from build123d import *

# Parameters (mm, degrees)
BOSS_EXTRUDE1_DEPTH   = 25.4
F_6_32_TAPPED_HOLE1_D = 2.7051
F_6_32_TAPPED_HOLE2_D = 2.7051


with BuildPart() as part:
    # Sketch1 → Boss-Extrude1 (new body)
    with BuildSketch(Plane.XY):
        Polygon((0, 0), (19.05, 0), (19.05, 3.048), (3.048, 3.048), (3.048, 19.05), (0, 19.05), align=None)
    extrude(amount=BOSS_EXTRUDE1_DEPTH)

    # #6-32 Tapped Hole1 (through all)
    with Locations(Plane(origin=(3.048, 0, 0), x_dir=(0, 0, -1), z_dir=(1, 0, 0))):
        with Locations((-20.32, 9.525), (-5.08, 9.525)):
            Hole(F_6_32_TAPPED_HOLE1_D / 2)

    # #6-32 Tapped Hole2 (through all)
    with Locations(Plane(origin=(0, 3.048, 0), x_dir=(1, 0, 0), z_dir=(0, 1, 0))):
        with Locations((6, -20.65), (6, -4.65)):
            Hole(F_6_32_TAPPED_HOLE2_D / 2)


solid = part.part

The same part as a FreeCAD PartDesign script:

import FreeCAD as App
import Part
import Sketcher
Q = App.Units.Quantity

doc = App.newDocument("Part")
params = doc.addObject("Spreadsheet::Sheet", "Params")
for row, (alias, value) in enumerate([
    ("sketch1_width", "0.75 in"),
    ("sketch1_width2", "0.63 in"),
    ("pad1_length", "1 in"),
    ("hole_diameter", "0.1065 in"),
    ("hole2_diameter", "0.1065 in"),
], start=1):
    params.set(f"A{row}", alias)
    params.set(f"B{row}", "=" + value)
    params.setAlias(f"B{row}", alias)

body = doc.addObject("PartDesign::Body", "Body")

# Sketch on XY plane
sketch1 = body.newObject("Sketcher::SketchObject", "Sketch")
sketch1.AttachmentSupport = (doc.getObject("XY_Plane"), [""])
sketch1.MapMode = "FlatFace"
sketch1.addGeometry(Part.LineSegment(App.Vector(0, 0, 0), App.Vector(19.1, 0, 0)), False)
sketch1.addGeometry(Part.LineSegment(App.Vector(19.1, 0, 0), App.Vector(19.1, 3, 0)), False)
sketch1.addGeometry(Part.LineSegment(App.Vector(19.1, 3, 0), App.Vector(3, 3, 0)), False)
sketch1.addGeometry(Part.LineSegment(App.Vector(3, 3, 0), App.Vector(3, 19.1, 0)), False)
sketch1.addGeometry(Part.LineSegment(App.Vector(3, 19.1, 0), App.Vector(0, 19.1, 0)), False)
sketch1.addGeometry(Part.LineSegment(App.Vector(0, 19.1, 0), App.Vector(0, 0, 0)), False)
sketch1.addConstraint(Sketcher.Constraint("Coincident", 0, 2, 1, 1))
sketch1.addConstraint(Sketcher.Constraint("Coincident", 1, 2, 2, 1))
sketch1.addConstraint(Sketcher.Constraint("Coincident", 2, 2, 3, 1))
sketch1.addConstraint(Sketcher.Constraint("Coincident", 3, 2, 4, 1))
sketch1.addConstraint(Sketcher.Constraint("Coincident", 4, 2, 5, 1))
sketch1.addConstraint(Sketcher.Constraint("Coincident", 5, 2, 0, 1))
sketch1.addConstraint(Sketcher.Constraint("Horizontal", 0))
sketch1.addConstraint(Sketcher.Constraint("Vertical", 1))
sketch1.addConstraint(Sketcher.Constraint("Horizontal", 2))
sketch1.addConstraint(Sketcher.Constraint("Vertical", 3))
sketch1.addConstraint(Sketcher.Constraint("Horizontal", 4))
sketch1.addConstraint(Sketcher.Constraint("Vertical", 5))
sketch1.addConstraint(Sketcher.Constraint("Coincident", 5, 2, -1, 1))
sketch1.addConstraint(Sketcher.Constraint("Equal", 4, 1))
sketch1.addConstraint(Sketcher.Constraint("Equal", 2, 3))
sketch1.addConstraint(Sketcher.Constraint("DistanceX", 0, 1, 0, 2, Q("0.75 in")))
sketch1.addConstraint(Sketcher.Constraint("DistanceX", 2, 2, 2, 1, Q("0.63 in")))
sketch1.setExpression("Constraints[15]", "Params.sketch1_width")
sketch1.setExpression("Constraints[16]", "Params.sketch1_width2")
pad1 = body.newObject("PartDesign::Pad", "Pad")
pad1.Profile = sketch1
pad1.setExpression("Length", "Params.pad1_length")

# Sketch on YZ plane
sketch2 = body.newObject("Sketcher::SketchObject", "Sketch001")
sketch2.AttachmentSupport = (doc.getObject("YZ_Plane"), [""])
sketch2.MapMode = "FlatFace"
sketch2.AttachmentOffset = App.Placement(App.Vector(0, 0, 0.12 * 25.4), App.Rotation())
sketch2.addGeometry(Part.Circle(App.Vector(9.5, 20.3, 0), App.Vector(0, 0, 1), 1.4), False)
sketch2.addGeometry(Part.Circle(App.Vector(9.5, 5.1, 0), App.Vector(0, 0, 1), 1.4), False)
sketch2.addConstraint(Sketcher.Constraint("Equal", 0, 1))
sketch2.addConstraint(Sketcher.Constraint("Vertical", 0, 3, 1, 3))
sketch2.addConstraint(Sketcher.Constraint("Diameter", 0, Q("0.1065 in")))
sketch2.addConstraint(Sketcher.Constraint("DistanceY", -1, 1, 0, 3, Q("0.8 in")))
sketch2.addConstraint(Sketcher.Constraint("DistanceY", -1, 1, 1, 3, Q("0.2 in")))
sketch2.addConstraint(Sketcher.Constraint("DistanceX", -1, 1, 0, 3, Q("0.375 in")))
doc.recompute()
hole = body.newObject("PartDesign::Hole", "Hole")
hole.Profile = sketch2
hole.ThreadType = "None"
hole.setExpression("Diameter", "Params.hole_diameter")
hole.DepthType = "ThroughAll"

# Sketch on XZ plane
sketch3 = body.newObject("Sketcher::SketchObject", "Sketch002")
sketch3.AttachmentSupport = (doc.getObject("XZ_Plane"), [""])
sketch3.MapMode = "FlatFace"
sketch3.AttachmentOffset = App.Placement(App.Vector(0, 0, -0.12 * 25.4), App.Rotation())
sketch3.addGeometry(Part.Circle(App.Vector(6, 20.6, 0), App.Vector(0, 0, 1), 1.4), False)
sketch3.addGeometry(Part.Circle(App.Vector(6, 4.7, 0), App.Vector(0, 0, 1), 1.4), False)
sketch3.addConstraint(Sketcher.Constraint("Equal", 0, 1))
sketch3.addConstraint(Sketcher.Constraint("Vertical", 0, 3, 1, 3))
sketch3.addConstraint(Sketcher.Constraint("Diameter", 0, Q("0.1065 in")))
sketch3.addConstraint(Sketcher.Constraint("DistanceX", -1, 1, 0, 3, 6.0))
sketch3.addConstraint(Sketcher.Constraint("DistanceY", -1, 1, 0, 3, 20.65))
sketch3.addConstraint(Sketcher.Constraint("DistanceY", -1, 1, 1, 3, 4.65))
doc.recompute()
hole2 = body.newObject("PartDesign::Hole", "Hole001")
hole2.Profile = sketch3
hole2.ThreadType = "None"
hole2.setExpression("Diameter", "Params.hole2_diameter")
hole2.DepthType = "ThroughAll"
hole2.Reversed = True

doc.recompute()
